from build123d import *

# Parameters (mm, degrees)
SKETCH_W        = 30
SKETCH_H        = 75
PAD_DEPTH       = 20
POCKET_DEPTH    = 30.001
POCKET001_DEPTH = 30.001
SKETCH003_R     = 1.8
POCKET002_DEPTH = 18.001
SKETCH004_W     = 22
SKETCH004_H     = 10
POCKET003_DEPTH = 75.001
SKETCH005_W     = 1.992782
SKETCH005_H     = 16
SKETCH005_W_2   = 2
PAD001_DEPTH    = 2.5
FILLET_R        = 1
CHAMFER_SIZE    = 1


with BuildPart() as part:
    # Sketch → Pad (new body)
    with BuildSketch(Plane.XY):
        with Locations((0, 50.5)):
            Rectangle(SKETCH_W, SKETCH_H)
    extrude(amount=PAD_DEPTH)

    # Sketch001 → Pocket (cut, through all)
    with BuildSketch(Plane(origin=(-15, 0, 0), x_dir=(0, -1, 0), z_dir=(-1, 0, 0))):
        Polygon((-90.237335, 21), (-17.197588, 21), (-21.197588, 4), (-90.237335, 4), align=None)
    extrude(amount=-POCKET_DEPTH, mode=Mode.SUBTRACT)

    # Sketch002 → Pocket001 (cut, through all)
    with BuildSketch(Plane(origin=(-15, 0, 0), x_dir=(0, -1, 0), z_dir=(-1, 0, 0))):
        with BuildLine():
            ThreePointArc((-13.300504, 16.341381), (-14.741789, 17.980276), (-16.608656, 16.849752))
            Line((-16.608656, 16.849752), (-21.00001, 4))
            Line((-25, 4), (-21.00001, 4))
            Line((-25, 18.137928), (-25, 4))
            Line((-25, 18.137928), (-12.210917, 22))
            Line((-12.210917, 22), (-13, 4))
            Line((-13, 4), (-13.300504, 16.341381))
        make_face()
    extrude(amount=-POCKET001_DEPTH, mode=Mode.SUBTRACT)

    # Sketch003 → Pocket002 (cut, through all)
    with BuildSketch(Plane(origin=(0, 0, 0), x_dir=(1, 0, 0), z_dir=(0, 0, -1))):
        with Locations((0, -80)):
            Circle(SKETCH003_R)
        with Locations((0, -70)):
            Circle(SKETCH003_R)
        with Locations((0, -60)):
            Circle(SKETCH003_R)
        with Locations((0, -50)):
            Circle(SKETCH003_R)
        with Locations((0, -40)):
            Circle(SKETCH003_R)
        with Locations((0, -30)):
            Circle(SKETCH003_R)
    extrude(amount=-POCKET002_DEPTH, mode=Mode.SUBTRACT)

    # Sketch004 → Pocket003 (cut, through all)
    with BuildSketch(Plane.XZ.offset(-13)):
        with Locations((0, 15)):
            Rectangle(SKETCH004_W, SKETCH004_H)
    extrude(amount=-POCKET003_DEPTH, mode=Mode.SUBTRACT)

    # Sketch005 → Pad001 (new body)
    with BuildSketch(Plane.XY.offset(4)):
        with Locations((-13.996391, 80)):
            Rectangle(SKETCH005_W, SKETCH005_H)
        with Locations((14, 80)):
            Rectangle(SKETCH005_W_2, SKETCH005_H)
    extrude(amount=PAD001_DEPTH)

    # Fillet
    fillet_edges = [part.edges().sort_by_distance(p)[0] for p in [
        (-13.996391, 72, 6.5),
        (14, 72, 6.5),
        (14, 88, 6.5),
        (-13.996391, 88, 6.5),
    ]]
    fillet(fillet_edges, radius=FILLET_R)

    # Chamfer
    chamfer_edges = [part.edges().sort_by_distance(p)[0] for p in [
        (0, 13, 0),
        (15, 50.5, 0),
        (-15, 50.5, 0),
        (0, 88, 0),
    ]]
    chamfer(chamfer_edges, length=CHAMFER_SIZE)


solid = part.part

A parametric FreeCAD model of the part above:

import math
import FreeCAD as App
import Part
import Sketcher


def edges_at(feature, points):
    """Names of the edges that pass closest to the given points."""
    edges = feature.Shape.Edges
    near = lambda p: min(range(len(edges)), key=lambda i: edges[i].distToShape(Part.Vertex(*p))[0])
    return sorted({f"Edge{near(p) + 1}" for p in points})


def add_polygon(sketch, points):
    """Adds a closed chain of lines whose ends are joined by coincident constraints."""
    first, n = sketch.GeometryCount, len(points)
    for a, b in zip(points, points[1:] + points[:1]):
        sketch.addGeometry(Part.LineSegment(App.Vector(*a, 0), App.Vector(*b, 0)), False)
    for i in range(n):
        sketch.addConstraint(Sketcher.Constraint("Coincident", first + i, 2, first + (i + 1) % n, 1))

doc = App.newDocument("Part")
body = doc.addObject("PartDesign::Body", "Body")

# Sketch on XY plane
sketch1 = body.newObject("Sketcher::SketchObject", "Sketch")
sketch1.AttachmentSupport = (doc.getObject("XY_Plane"), [""])
sketch1.MapMode = "FlatFace"
add_polygon(sketch1, [(-15, 88), (-15, 13), (15, 13), (15, 88)])  # lines 0-3
sketch1.addConstraint([
    Sketcher.Constraint("Vertical", 0),
    Sketcher.Constraint("Horizontal", 1),
    Sketcher.Constraint("Vertical", 2),
    Sketcher.Constraint("Horizontal", 3),
    Sketcher.Constraint("DistanceX", 1, 1, 1, 2, 30.0),
    Sketcher.Constraint("DistanceY", 0, 2, 0, 1, 75.0),
    Sketcher.Constraint("DistanceX", 0, 2, -1, 1, 15.0),
    Sketcher.Constraint("DistanceY", -1, 1, 0, 2, 13.0),
])
pad1 = body.newObject("PartDesign::Pad", "Pad")
pad1.Profile = sketch1
pad1.Length = 20

# Sketch on YZ plane
sketch2 = body.newObject("Sketcher::SketchObject", "Sketch001")
sketch2.AttachmentSupport = (doc.getObject("YZ_Plane"), [""])
sketch2.MapMode = "FlatFace"
sketch2.AttachmentOffset = App.Placement(App.Vector(0, 0, -15), App.Rotation())
add_polygon(sketch2, [(17, 21), (90, 21), (90, 4), (21, 4)])  # lines 0-3
sketch2.addConstraint([
    Sketcher.Constraint("Horizontal", 0),
    Sketcher.Constraint("Vertical", 1),
    Sketcher.Constraint("Horizontal", 2),
    Sketcher.Constraint("DistanceY", 1, 2, 1, 1, 17.0),
    Sketcher.Constraint("DistanceY", -1, 1, 0, 2, 21.0),
    Sketcher.Constraint("DistanceX", 3, 2, 2, 2, 4.0),
    Sketcher.Constraint("DistanceX", 0, 1, 0, 2, 73.039747),
    Sketcher.Constraint("DistanceX", -1, 1, 0, 2, 90.237335),
])
pocket1 = body.newObject("PartDesign::Pocket", "Pocket")
pocket1.Profile = sketch2
pocket1.Type = "ThroughAll"
pocket1.Reversed = True

# Sketch on YZ plane
sketch3 = body.newObject("Sketcher::SketchObject", "Sketch002")
sketch3.AttachmentSupport = (doc.getObject("YZ_Plane"), [""])
sketch3.MapMode = "FlatFace"
sketch3.AttachmentOffset = App.Placement(App.Vector(0, 0, -15), App.Rotation())
sketch3.addGeometry([
    Part.ArcOfCircle(Part.Circle(App.Vector(15, 16.3, 0), App.Vector(0, 0, 1), 1.7), math.radians(19), math.radians(179)),  # 0
    Part.LineSegment(App.Vector(13.3, 16.3, 0), App.Vector(13, 4, 0)),  # 1
    Part.LineSegment(App.Vector(13, 4, 0), App.Vector(12.2, 22, 0)),  # 2
    Part.LineSegment(App.Vector(12.2, 22, 0), App.Vector(25, 18.1, 0)),  # 3
    Part.LineSegment(App.Vector(25, 18.1, 0), App.Vector(25, 4, 0)),  # 4
    Part.LineSegment(App.Vector(25, 4, 0), App.Vector(21, 4, 0)),  # 5
    Part.LineSegment(App.Vector(21, 4, 0), App.Vector(16.6, 16.8, 0)),  # 6
], False)
sketch3.addConstraint([
    Sketcher.Constraint("Tangent", 0, 2, 1, 1),
    Sketcher.Constraint("Coincident", 1, 2, 2, 1),
    Sketcher.Constraint("Coincident", 2, 2, 3, 1),
    Sketcher.Constraint("Coincident", 3, 2, 4, 1),
    Sketcher.Constraint("Coincident", 4, 2, 5, 1),
    Sketcher.Constraint("Coincident", 5, 2, 6, 1),
    Sketcher.Constraint("Tangent", 6, 2, 0, 1),
    Sketcher.Constraint("Vertical", 4),
    Sketcher.Constraint("Horizontal", 5),
    Sketcher.Constraint("Horizontal", 1, 2, 4, 2),
    Sketcher.Constraint("Radius", 0, 1.7),
    Sketcher.Constraint("DistanceX", -1, 1, 0, 3, 15.0),
    Sketcher.Constraint("DistanceX", -1, 1, 1, 2, 13.0),
    Sketcher.Constraint("DistanceY", -1, 1, 1, 2, 4.0),
    Sketcher.Constraint("DistanceY", -1, 1, 2, 2, 22.0),
    Sketcher.Constraint("DistanceX", -1, 1, 3, 2, 25.0),
    Sketcher.Constraint("DistanceY", -1, 1, 0, 3, 16.3),
    Sketcher.Constraint("Distance", 3, 13.3595),
    Sketcher.Constraint("Distance", 6, 13.5794),
    Sketcher.Constraint("DistanceY", 4, 2, 4, 1, 14.137928),
])
pocket2 = body.newObject("PartDesign::Pocket", "Pocket001")
pocket2.Profile = sketch3
pocket2.Type = "ThroughAll"
pocket2.Reversed = True

# Sketch on XY plane
sketch4 = body.newObject("Sketcher::SketchObject", "Sketch003")
sketch4.AttachmentSupport = (doc.getObject("XY_Plane"), [""])
sketch4.MapMode = "FlatFace"
sketch4.addGeometry([
    Part.Circle(App.Vector(0, 80, 0), App.Vector(0, 0, 1), 1.8),  # 0
    Part.Circle(App.Vector(0, 70, 0), App.Vector(0, 0, 1), 1.8),  # 1
    Part.Circle(App.Vector(0, 60, 0), App.Vector(0, 0, 1), 1.8),  # 2
    Part.Circle(App.Vector(0, 50, 0), App.Vector(0, 0, 1), 1.8),  # 3
    Part.Circle(App.Vector(0, 40, 0), App.Vector(0, 0, 1), 1.8),  # 4
    Part.Circle(App.Vector(0, 30, 0), App.Vector(0, 0, 1), 1.8),  # 5
], False)
sketch4.addConstraint([
    Sketcher.Constraint("Equal", 0, 1),
    Sketcher.Constraint("Equal", 1, 2),
    Sketcher.Constraint("Equal", 2, 3),
    Sketcher.Constraint("Equal", 3, 4),
    Sketcher.Constraint("Equal", 4, 5),
    Sketcher.Constraint("PointOnObject", 0, 3, -2),
    Sketcher.Constraint("PointOnObject", 1, 3, -2),
    Sketcher.Constraint("PointOnObject", 2, 3, -2),
    Sketcher.Constraint("PointOnObject", 3, 3, -2),
    Sketcher.Constraint("PointOnObject", 4, 3, -2),
    Sketcher.Constraint("PointOnObject", 5, 3, -2),
    Sketcher.Constraint("Diameter", 0, 3.6),
    Sketcher.Constraint("DistanceY", -1, 1, 0, 3, 80.0),
    Sketcher.Constraint("DistanceY", -1, 1, 1, 3, 70.0),
    Sketcher.Constraint("DistanceY", -1, 1, 2, 3, 60.0),
    Sketcher.Constraint("DistanceY", -1, 1, 3, 3, 50.0),
    Sketcher.Constraint("DistanceY", -1, 1, 4, 3, 40.0),
    Sketcher.Constraint("DistanceY", -1, 1, 5, 3, 30.0),
])
pocket3 = body.newObject("PartDesign::Pocket", "Pocket002")
pocket3.Profile = sketch4
pocket3.Type = "ThroughAll"
pocket3.Reversed = True

# Sketch on XZ plane
sketch5 = body.newObject("Sketcher::SketchObject", "Sketch004")
sketch5.AttachmentSupport = (doc.getObject("XZ_Plane"), [""])
sketch5.MapMode = "FlatFace"
sketch5.AttachmentOffset = App.Placement(App.Vector(0, 0, -13), App.Rotation())
add_polygon(sketch5, [(-11, 20), (-11, 10), (11, 10), (11, 20)])  # lines 0-3
sketch5.addConstraint([
    Sketcher.Constraint("Vertical", 0),
    Sketcher.Constraint("Horizontal", 1),
    Sketcher.Constraint("Vertical", 2),
    Sketcher.Constraint("Horizontal", 3),
    Sketcher.Constraint("DistanceX", 1, 1, 1, 2, 22.0),
    Sketcher.Constraint("DistanceY", 0, 2, 0, 1, 10.0),
    Sketcher.Constraint("DistanceX", 0, 2, -1, 1, 11.0),
    Sketcher.Constraint("DistanceY", -1, 1, 0, 2, 10.0),
])
pocket4 = body.newObject("PartDesign::Pocket", "Pocket003")
pocket4.Profile = sketch5
pocket4.Type = "ThroughAll"

# Sketch on XY plane
sketch6 = body.newObject("Sketcher::SketchObject", "Sketch005")
sketch6.AttachmentSupport = (doc.getObject("XY_Plane"), [""])
sketch6.MapMode = "FlatFace"
sketch6.AttachmentOffset = App.Placement(App.Vector(0, 0, 4), App.Rotation())
add_polygon(sketch6, [(-15, 88), (-15, 72), (-13, 72), (-13, 88)])  # lines 0-3
add_polygon(sketch6, [(13, 88), (13, 72), (15, 72), (15, 88)])  # lines 4-7
sketch6.addConstraint([
    Sketcher.Constraint("Vertical", 0),
    Sketcher.Constraint("Horizontal", 1),
    Sketcher.Constraint("Vertical", 2),
    Sketcher.Constraint("Horizontal", 3),
    Sketcher.Constraint("Vertical", 4),
    Sketcher.Constraint("Horizontal", 5),
    Sketcher.Constraint("Vertical", 6),
    Sketcher.Constraint("Horizontal", 7),
    Sketcher.Constraint("Symmetric", 1, 2, 4, 2, -2),
    Sketcher.Constraint("Horizontal", 3, 2, 6, 2),
    Sketcher.Constraint("DistanceX", 5, 1, 5, 2, 2.0),
    Sketcher.Constraint("DistanceY", 0, 2, 0, 1, 16.0),
    Sketcher.Constraint("DistanceY", -1, 1, 0, 2, 72.0),
    Sketcher.Constraint("DistanceX", 1, 2, -1, 1, 13.0),
    Sketcher.Constraint("DistanceX", 1, 1, 1, 2, 1.992782),
])
pad2 = body.newObject("PartDesign::Pad", "Pad001")
pad2.Profile = sketch6
pad2.Length = 2.5
doc.recompute()

fillet = body.newObject("PartDesign::Fillet", "Fillet")
fillet.Base = (pad2, edges_at(pad2, [
    (-13.996, 72, 6.5),
    (14, 72, 6.5),
    (14, 88, 6.5),
    (-13.996, 88, 6.5),
]))
fillet.Radius = 1
doc.recompute()

chamfer = body.newObject("PartDesign::Chamfer", "Chamfer")
chamfer.Base = (fillet, edges_at(fillet, [
    (0, 13, 0),
    (15, 50.5, 0),
    (-15, 50.5, 0),
    (0, 88, 0),
]))
chamfer.Size = 1

doc.recompute()
